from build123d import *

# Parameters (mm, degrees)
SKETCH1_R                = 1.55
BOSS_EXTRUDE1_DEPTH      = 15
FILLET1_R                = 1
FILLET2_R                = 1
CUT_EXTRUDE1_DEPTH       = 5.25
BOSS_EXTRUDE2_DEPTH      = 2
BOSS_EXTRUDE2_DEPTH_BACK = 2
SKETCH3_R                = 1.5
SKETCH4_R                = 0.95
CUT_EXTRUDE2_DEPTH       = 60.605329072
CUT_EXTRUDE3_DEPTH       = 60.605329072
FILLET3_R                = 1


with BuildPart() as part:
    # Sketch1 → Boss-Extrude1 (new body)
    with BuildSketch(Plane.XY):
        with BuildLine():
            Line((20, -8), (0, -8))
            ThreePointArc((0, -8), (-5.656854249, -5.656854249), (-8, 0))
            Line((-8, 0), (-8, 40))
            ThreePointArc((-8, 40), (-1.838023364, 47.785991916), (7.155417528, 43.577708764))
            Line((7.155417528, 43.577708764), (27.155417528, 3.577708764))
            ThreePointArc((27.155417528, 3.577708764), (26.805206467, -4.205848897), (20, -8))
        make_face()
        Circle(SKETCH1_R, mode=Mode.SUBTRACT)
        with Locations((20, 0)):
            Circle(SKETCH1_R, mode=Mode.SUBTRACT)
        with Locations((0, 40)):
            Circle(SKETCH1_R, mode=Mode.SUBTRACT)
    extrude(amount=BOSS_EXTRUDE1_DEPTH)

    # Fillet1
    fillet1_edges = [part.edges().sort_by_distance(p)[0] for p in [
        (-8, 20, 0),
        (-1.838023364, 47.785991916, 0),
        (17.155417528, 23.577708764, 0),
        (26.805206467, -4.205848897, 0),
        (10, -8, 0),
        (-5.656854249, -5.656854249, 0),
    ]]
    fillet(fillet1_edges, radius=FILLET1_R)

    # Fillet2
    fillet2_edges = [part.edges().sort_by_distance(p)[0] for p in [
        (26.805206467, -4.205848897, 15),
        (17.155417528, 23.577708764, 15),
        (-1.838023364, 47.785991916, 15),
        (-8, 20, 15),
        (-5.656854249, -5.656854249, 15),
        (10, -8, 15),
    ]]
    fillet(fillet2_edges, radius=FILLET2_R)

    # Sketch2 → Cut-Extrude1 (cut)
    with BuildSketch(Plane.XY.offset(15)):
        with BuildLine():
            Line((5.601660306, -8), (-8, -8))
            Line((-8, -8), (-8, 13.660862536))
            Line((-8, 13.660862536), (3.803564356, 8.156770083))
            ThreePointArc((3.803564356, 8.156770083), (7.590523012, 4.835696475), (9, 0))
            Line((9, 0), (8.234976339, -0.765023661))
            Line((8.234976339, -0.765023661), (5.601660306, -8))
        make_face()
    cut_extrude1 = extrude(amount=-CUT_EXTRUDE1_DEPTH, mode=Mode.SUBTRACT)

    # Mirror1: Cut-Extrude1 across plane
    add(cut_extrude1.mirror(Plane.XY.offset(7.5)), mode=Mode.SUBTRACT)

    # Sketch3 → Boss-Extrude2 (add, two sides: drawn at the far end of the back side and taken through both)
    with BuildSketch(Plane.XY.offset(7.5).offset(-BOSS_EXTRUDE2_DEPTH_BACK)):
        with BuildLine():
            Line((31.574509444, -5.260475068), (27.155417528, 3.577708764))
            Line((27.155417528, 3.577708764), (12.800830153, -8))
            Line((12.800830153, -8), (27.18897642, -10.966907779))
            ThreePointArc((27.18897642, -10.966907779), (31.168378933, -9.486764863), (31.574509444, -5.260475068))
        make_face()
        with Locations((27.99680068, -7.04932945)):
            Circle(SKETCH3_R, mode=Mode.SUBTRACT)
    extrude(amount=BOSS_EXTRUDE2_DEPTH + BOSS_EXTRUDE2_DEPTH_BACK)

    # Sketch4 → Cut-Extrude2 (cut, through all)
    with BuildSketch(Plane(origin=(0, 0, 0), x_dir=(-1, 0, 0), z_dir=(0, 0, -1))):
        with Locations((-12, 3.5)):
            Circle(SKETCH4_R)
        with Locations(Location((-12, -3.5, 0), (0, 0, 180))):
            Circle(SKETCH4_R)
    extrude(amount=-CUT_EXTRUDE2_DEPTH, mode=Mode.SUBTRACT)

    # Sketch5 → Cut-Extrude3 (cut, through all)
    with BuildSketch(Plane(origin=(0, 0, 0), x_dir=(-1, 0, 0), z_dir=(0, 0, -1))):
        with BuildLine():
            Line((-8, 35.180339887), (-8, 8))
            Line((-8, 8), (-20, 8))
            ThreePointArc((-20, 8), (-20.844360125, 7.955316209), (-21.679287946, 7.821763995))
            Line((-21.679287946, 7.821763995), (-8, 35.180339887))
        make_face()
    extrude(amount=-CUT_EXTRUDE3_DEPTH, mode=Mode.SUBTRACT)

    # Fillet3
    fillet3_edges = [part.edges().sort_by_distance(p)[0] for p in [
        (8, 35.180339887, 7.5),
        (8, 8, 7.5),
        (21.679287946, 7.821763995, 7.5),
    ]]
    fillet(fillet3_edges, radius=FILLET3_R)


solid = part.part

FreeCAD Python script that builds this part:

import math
import FreeCAD as App
import Part
import Sketcher
Q = App.Units.Quantity


def edges_at(feature, points):
    """Names of the edges that pass closest to the given points."""
    edges = feature.Shape.Edges
    near = lambda p: min(range(len(edges)), key=lambda i: edges[i].distToShape(Part.Vertex(*p))[0])
    return sorted({f"Edge{near(p) + 1}" for p in points})

doc = App.newDocument("Part")
body = doc.addObject("PartDesign::Body", "Body")

# Sketch on XY plane
sketch1 = body.newObject("Sketcher::SketchObject", "Sketch")
sketch1.AttachmentSupport = (doc.getObject("XY_Plane"), [""])
sketch1.MapMode = "FlatFace"
sketch1.addGeometry([
    Part.LineSegment(App.Vector(0, -8, 0), App.Vector(20, -8, 0)),  # 0
    Part.ArcOfCircle(Part.Circle(App.Vector(20, 0, 0), App.Vector(0, 0, 1), 8), math.radians(-90), math.radians(27)),  # 1
    Part.LineSegment(App.Vector(27.2, 3.6, 0), App.Vector(7.2, 43.6, 0)),  # 2
    Part.ArcOfCircle(Part.Circle(App.Vector(0, 40, 0), App.Vector(0, 0, 1), 8), math.radians(27), math.radians(180)),  # 3
    Part.LineSegment(App.Vector(-8, 40, 0), App.Vector(-8, 0, 0)),  # 4
    Part.ArcOfCircle(Part.Circle(App.Vector(0, 0, 0), App.Vector(0, 0, 1), 8), math.radians(-180), math.radians(-90)),  # 5
    Part.Circle(App.Vector(20, 0, 0), App.Vector(0, 0, 1), 1.6),  # 6
    Part.Circle(App.Vector(0, 0, 0), App.Vector(0, 0, 1), 1.6),  # 7
    Part.Circle(App.Vector(0, 40, 0), App.Vector(0, 0, 1), 1.6),  # 8
], False)
sketch1.addConstraint([
    Sketcher.Constraint("Tangent", 0, 2, 1, 1),
    Sketcher.Constraint("Tangent", 1, 2, 2, 1),
    Sketcher.Constraint("Tangent", 2, 2, 3, 1),
    Sketcher.Constraint("Tangent", 3, 2, 4, 1),
    Sketcher.Constraint("Tangent", 4, 2, 5, 1),
    Sketcher.Constraint("Tangent", 5, 2, 0, 1),
    Sketcher.Constraint("Horizontal", 0),
    Sketcher.Constraint("Vertical", 4),
    Sketcher.Constraint("Coincident", 5, 3, -1, 1),
    Sketcher.Constraint("Coincident", 7, 3, -1, 1),
    Sketcher.Constraint("Coincident", 6, 3, 1, 3),
    Sketcher.Constraint("Coincident", 8, 3, 3, 3),
    Sketcher.Constraint("Equal", 1, 3),
    Sketcher.Constraint("Equal", 3, 5),
    Sketcher.Constraint("Equal", 6, 7),
    Sketcher.Constraint("Equal", 7, 8),
    Sketcher.Constraint("Radius", 1, Q("8 mm")),
    Sketcher.Constraint("Diameter", 6, Q("3.1 mm")),
    Sketcher.Constraint("DistanceX", 0, 1, 0, 2, Q("20 mm")),
    Sketcher.Constraint("DistanceY", 4, 2, 4, 1, Q("40 mm")),
])
pad1 = body.newObject("PartDesign::Pad", "Pad")
pad1.Profile = sketch1
pad1.Length = 15
doc.recompute()

fillet = body.newObject("PartDesign::Fillet", "Fillet")
fillet.Base = (pad1, edges_at(pad1, [
    (-8, 20, 0),
    (-1.838, 47.786, 0),
    (17.155, 23.578, 0),
    (26.805, -4.206, 0),
    (10, -8, 0),
    (-5.657, -5.657, 0),
]))
fillet.Radius = 1
doc.recompute()

fillet2 = body.newObject("PartDesign::Fillet", "Fillet001")
fillet2.Base = (fillet, edges_at(fillet, [
    (26.805, -4.206, 15),
    (17.155, 23.578, 15),
    (-1.838, 47.786, 15),
    (-8, 20, 15),
    (-5.657, -5.657, 15),
    (10, -8, 15),
]))
fillet2.Radius = 1

# Sketch on XY plane
sketch2 = body.newObject("Sketcher::SketchObject", "Sketch001")
sketch2.AttachmentSupport = (doc.getObject("XY_Plane"), [""])
sketch2.MapMode = "FlatFace"
sketch2.AttachmentOffset = App.Placement(App.Vector(0, 0, 15), App.Rotation())
sketch2.addGeometry([
    Part.LineSegment(App.Vector(-8, -8, 0), App.Vector(5.6, -8, 0)),  # 0
    Part.LineSegment(App.Vector(5.6, -8, 0), App.Vector(8.2, -0.8, 0)),  # 1
    Part.LineSegment(App.Vector(8.2, -0.8, 0), App.Vector(9, 0, 0)),  # 2
    Part.ArcOfCircle(Part.Circle(App.Vector(0, 0, 0), App.Vector(0, 0, 1), 9), math.radians(0), math.radians(65)),  # 3
    Part.LineSegment(App.Vector(3.8, 8.2, 0), App.Vector(-8, 13.7, 0)),  # 4
    Part.LineSegment(App.Vector(-8, 13.7, 0), App.Vector(-8, -8, 0)),  # 5
], False)
sketch2.addConstraint([
    Sketcher.Constraint("Coincident", 0, 2, 1, 1),
    Sketcher.Constraint("Coincident", 1, 2, 2, 1),
    Sketcher.Constraint("Coincident", 2, 2, 3, 1),
    Sketcher.Constraint("Tangent", 3, 2, 4, 1),
    Sketcher.Constraint("Coincident", 4, 2, 5, 1),
    Sketcher.Constraint("Coincident", 5, 2, 0, 1),
    Sketcher.Constraint("Horizontal", 0),
    Sketcher.Constraint("Vertical", 5),
    Sketcher.Constraint("Coincident", 3, 3, -1, 1),
    Sketcher.Constraint("PointOnObject", 2, 2, -1),
    Sketcher.Constraint("Radius", 3, Q("9 mm")),
    Sketcher.Constraint("Angle", 1, Q("70 deg")),
    Sketcher.Constraint("Angle", 2, Q("45 deg")),
    Sketcher.Constraint("Angle", 4, Q("155 deg")),
    Sketcher.Constraint("DistanceY", 0, 2, -1, 1, Q("8 mm")),
    Sketcher.Constraint("DistanceX", 4, 2, -1, 1, Q("8 mm")),
    Sketcher.Constraint("Distance", 1, Q("7.699301 mm")),
])
pocket1 = body.newObject("PartDesign::Pocket", "Pocket")
pocket1.Profile = sketch2
pocket1.Length = 5.25
doc.recompute()

datumplane = body.newObject("PartDesign::Plane", "DatumPlane")
datumplane.AttachmentSupport = (doc.getObject("XY_Plane"), [""])
datumplane.MapMode = "FlatFace"
datumplane.AttachmentOffset = App.Placement(App.Vector(0, 0, 7.5), App.Rotation())
mirrored = body.newObject("PartDesign::Mirrored", "Mirrored")
mirrored.Originals = [pocket1]
mirrored.MirrorPlane = (datumplane, [""])
body.Tip = mirrored

# Sketch on XY plane
sketch3 = body.newObject("Sketcher::SketchObject", "Sketch002")
sketch3.AttachmentSupport = (doc.getObject("XY_Plane"), [""])
sketch3.MapMode = "FlatFace"
sketch3.AttachmentOffset = App.Placement(App.Vector(0, 0, 7.5), App.Rotation())
sketch3.addGeometry([
    Part.LineSegment(App.Vector(31.6, -5.3, 0), App.Vector(27.2, 3.6, 0)),  # 0
    Part.LineSegment(App.Vector(27.2, 3.6, 0), App.Vector(12.8, -8, 0)),  # 1
    Part.LineSegment(App.Vector(12.8, -8, 0), App.Vector(27.2, -11, 0)),  # 2
    Part.ArcOfCircle(Part.Circle(App.Vector(28, -7, 0), App.Vector(0, 0, 1), 4), math.radians(-102), math.radians(27)),  # 3
    Part.Circle(App.Vector(28, -7, 0), App.Vector(0, 0, 1), 1.5),  # 4
], False)
sketch3.addConstraint([
    Sketcher.Constraint("Coincident", 0, 2, 1, 1),
    Sketcher.Constraint("Coincident", 1, 2, 2, 1),
    Sketcher.Constraint("Tangent", 2, 2, 3, 1),
    Sketcher.Constraint("Tangent", 3, 2, 0, 1),
    Sketcher.Constraint("Coincident", 4, 3, 3, 3),
    Sketcher.Constraint("Diameter", 4, Q("3 mm")),
    Sketcher.Constraint("Radius", 3, Q("4 mm")),
    Sketcher.Constraint("DistanceY", 1, 2, -1, 1, Q("8 mm")),
    Sketcher.Constraint("DistanceX", -1, 1, 3, 3, Q("27.996801 mm")),
    Sketcher.Constraint("Distance", 0, Q("9.88139 mm")),
    Sketcher.Constraint("DistanceY", 3, 3, -1, 1, Q("7.049329 mm")),
    Sketcher.Constraint("DistanceY", -1, 1, 0, 2, Q("3.577709 mm")),
    Sketcher.Constraint("DistanceX", -1, 1, 1, 2, Q("12.80083 mm")),
])
pad2 = body.newObject("PartDesign::Pad", "Pad001")
pad2.Profile = sketch3
pad2.Type = "TwoLengths"
pad2.Length = 2
pad2.Length2 = 2

# Sketch on XY plane
sketch4 = body.newObject("Sketcher::SketchObject", "Sketch003")
sketch4.AttachmentSupport = (doc.getObject("XY_Plane"), [""])
sketch4.MapMode = "FlatFace"
sketch4.addGeometry([
    Part.Circle(App.Vector(12, 3.5, 0), App.Vector(0, 0, 1), 0.9),
    Part.Circle(App.Vector(12, -3.5, 0), App.Vector(0, 0, 1), 0.9),
], False)
sketch4.addConstraint([
    Sketcher.Constraint("Equal", 0, 1),
    Sketcher.Constraint("Symmetric", 0, 3, 1, 3, -1),
    Sketcher.Constraint("Diameter", 0, Q("1.9 mm")),
    Sketcher.Constraint("DistanceX", -1, 1, 0, 3, Q("12 mm")),
    Sketcher.Constraint("DistanceY", 1, 3, 0, 3, Q("7 mm")),
])
pocket2 = body.newObject("PartDesign::Pocket", "Pocket001")
pocket2.Profile = sketch4
pocket2.Type = "ThroughAll"
pocket2.Reversed = True

# Sketch on XY plane
sketch5 = body.newObject("Sketcher::SketchObject", "Sketch004")
sketch5.AttachmentSupport = (doc.getObject("XY_Plane"), [""])
sketch5.MapMode = "FlatFace"
sketch5.addGeometry([
    Part.LineSegment(App.Vector(8, 8, 0), App.Vector(8, 35.2, 0)),
    Part.LineSegment(App.Vector(8, 35.2, 0), App.Vector(21.7, 7.8, 0)),
    Part.ArcOfCircle(Part.Circle(App.Vector(20, 0, 0), App.Vector(0, 0, 1), 8), math.radians(77.88), math.radians(90)),
    Part.LineSegment(App.Vector(20, 8, 0), App.Vector(8, 8, 0)),
], False)
sketch5.addConstraint([
    Sketcher.Constraint("Coincident", 0, 2, 1, 1),
    Sketcher.Constraint("Coincident", 1, 2, 2, 1),
    Sketcher.Constraint("Tangent", 2, 2, 3, 1),
    Sketcher.Constraint("Coincident", 3, 2, 0, 1),
    Sketcher.Constraint("Vertical", 0),
    Sketcher.Constraint("Horizontal", 3),
    Sketcher.Constraint("PointOnObject", 2, 3, -1),
    Sketcher.Constraint("Radius", 2, Q("8 mm")),
    Sketcher.Constraint("DistanceX", 3, 2, 3, 1, Q("12 mm")),
    Sketcher.Constraint("DistanceX", -1, 1, 2, 3, Q("20 mm")),
    Sketcher.Constraint("DistanceY", 0, 1, 0, 2, Q("27.18034 mm")),
    Sketcher.Constraint("Distance", 1, Q("30.587818 mm")),
])
pocket3 = body.newObject("PartDesign::Pocket", "Pocket002")
pocket3.Profile = sketch5
pocket3.Type = "ThroughAll"
pocket3.Reversed = True
doc.recompute()

fillet3 = body.newObject("PartDesign::Fillet", "Fillet002")
fillet3.Base = (pocket3, edges_at(pocket3, [(8, 35.18, 7.5), (8, 8, 7.5), (21.679, 7.822, 7.5)]))
fillet3.Radius = 1

doc.recompute()
